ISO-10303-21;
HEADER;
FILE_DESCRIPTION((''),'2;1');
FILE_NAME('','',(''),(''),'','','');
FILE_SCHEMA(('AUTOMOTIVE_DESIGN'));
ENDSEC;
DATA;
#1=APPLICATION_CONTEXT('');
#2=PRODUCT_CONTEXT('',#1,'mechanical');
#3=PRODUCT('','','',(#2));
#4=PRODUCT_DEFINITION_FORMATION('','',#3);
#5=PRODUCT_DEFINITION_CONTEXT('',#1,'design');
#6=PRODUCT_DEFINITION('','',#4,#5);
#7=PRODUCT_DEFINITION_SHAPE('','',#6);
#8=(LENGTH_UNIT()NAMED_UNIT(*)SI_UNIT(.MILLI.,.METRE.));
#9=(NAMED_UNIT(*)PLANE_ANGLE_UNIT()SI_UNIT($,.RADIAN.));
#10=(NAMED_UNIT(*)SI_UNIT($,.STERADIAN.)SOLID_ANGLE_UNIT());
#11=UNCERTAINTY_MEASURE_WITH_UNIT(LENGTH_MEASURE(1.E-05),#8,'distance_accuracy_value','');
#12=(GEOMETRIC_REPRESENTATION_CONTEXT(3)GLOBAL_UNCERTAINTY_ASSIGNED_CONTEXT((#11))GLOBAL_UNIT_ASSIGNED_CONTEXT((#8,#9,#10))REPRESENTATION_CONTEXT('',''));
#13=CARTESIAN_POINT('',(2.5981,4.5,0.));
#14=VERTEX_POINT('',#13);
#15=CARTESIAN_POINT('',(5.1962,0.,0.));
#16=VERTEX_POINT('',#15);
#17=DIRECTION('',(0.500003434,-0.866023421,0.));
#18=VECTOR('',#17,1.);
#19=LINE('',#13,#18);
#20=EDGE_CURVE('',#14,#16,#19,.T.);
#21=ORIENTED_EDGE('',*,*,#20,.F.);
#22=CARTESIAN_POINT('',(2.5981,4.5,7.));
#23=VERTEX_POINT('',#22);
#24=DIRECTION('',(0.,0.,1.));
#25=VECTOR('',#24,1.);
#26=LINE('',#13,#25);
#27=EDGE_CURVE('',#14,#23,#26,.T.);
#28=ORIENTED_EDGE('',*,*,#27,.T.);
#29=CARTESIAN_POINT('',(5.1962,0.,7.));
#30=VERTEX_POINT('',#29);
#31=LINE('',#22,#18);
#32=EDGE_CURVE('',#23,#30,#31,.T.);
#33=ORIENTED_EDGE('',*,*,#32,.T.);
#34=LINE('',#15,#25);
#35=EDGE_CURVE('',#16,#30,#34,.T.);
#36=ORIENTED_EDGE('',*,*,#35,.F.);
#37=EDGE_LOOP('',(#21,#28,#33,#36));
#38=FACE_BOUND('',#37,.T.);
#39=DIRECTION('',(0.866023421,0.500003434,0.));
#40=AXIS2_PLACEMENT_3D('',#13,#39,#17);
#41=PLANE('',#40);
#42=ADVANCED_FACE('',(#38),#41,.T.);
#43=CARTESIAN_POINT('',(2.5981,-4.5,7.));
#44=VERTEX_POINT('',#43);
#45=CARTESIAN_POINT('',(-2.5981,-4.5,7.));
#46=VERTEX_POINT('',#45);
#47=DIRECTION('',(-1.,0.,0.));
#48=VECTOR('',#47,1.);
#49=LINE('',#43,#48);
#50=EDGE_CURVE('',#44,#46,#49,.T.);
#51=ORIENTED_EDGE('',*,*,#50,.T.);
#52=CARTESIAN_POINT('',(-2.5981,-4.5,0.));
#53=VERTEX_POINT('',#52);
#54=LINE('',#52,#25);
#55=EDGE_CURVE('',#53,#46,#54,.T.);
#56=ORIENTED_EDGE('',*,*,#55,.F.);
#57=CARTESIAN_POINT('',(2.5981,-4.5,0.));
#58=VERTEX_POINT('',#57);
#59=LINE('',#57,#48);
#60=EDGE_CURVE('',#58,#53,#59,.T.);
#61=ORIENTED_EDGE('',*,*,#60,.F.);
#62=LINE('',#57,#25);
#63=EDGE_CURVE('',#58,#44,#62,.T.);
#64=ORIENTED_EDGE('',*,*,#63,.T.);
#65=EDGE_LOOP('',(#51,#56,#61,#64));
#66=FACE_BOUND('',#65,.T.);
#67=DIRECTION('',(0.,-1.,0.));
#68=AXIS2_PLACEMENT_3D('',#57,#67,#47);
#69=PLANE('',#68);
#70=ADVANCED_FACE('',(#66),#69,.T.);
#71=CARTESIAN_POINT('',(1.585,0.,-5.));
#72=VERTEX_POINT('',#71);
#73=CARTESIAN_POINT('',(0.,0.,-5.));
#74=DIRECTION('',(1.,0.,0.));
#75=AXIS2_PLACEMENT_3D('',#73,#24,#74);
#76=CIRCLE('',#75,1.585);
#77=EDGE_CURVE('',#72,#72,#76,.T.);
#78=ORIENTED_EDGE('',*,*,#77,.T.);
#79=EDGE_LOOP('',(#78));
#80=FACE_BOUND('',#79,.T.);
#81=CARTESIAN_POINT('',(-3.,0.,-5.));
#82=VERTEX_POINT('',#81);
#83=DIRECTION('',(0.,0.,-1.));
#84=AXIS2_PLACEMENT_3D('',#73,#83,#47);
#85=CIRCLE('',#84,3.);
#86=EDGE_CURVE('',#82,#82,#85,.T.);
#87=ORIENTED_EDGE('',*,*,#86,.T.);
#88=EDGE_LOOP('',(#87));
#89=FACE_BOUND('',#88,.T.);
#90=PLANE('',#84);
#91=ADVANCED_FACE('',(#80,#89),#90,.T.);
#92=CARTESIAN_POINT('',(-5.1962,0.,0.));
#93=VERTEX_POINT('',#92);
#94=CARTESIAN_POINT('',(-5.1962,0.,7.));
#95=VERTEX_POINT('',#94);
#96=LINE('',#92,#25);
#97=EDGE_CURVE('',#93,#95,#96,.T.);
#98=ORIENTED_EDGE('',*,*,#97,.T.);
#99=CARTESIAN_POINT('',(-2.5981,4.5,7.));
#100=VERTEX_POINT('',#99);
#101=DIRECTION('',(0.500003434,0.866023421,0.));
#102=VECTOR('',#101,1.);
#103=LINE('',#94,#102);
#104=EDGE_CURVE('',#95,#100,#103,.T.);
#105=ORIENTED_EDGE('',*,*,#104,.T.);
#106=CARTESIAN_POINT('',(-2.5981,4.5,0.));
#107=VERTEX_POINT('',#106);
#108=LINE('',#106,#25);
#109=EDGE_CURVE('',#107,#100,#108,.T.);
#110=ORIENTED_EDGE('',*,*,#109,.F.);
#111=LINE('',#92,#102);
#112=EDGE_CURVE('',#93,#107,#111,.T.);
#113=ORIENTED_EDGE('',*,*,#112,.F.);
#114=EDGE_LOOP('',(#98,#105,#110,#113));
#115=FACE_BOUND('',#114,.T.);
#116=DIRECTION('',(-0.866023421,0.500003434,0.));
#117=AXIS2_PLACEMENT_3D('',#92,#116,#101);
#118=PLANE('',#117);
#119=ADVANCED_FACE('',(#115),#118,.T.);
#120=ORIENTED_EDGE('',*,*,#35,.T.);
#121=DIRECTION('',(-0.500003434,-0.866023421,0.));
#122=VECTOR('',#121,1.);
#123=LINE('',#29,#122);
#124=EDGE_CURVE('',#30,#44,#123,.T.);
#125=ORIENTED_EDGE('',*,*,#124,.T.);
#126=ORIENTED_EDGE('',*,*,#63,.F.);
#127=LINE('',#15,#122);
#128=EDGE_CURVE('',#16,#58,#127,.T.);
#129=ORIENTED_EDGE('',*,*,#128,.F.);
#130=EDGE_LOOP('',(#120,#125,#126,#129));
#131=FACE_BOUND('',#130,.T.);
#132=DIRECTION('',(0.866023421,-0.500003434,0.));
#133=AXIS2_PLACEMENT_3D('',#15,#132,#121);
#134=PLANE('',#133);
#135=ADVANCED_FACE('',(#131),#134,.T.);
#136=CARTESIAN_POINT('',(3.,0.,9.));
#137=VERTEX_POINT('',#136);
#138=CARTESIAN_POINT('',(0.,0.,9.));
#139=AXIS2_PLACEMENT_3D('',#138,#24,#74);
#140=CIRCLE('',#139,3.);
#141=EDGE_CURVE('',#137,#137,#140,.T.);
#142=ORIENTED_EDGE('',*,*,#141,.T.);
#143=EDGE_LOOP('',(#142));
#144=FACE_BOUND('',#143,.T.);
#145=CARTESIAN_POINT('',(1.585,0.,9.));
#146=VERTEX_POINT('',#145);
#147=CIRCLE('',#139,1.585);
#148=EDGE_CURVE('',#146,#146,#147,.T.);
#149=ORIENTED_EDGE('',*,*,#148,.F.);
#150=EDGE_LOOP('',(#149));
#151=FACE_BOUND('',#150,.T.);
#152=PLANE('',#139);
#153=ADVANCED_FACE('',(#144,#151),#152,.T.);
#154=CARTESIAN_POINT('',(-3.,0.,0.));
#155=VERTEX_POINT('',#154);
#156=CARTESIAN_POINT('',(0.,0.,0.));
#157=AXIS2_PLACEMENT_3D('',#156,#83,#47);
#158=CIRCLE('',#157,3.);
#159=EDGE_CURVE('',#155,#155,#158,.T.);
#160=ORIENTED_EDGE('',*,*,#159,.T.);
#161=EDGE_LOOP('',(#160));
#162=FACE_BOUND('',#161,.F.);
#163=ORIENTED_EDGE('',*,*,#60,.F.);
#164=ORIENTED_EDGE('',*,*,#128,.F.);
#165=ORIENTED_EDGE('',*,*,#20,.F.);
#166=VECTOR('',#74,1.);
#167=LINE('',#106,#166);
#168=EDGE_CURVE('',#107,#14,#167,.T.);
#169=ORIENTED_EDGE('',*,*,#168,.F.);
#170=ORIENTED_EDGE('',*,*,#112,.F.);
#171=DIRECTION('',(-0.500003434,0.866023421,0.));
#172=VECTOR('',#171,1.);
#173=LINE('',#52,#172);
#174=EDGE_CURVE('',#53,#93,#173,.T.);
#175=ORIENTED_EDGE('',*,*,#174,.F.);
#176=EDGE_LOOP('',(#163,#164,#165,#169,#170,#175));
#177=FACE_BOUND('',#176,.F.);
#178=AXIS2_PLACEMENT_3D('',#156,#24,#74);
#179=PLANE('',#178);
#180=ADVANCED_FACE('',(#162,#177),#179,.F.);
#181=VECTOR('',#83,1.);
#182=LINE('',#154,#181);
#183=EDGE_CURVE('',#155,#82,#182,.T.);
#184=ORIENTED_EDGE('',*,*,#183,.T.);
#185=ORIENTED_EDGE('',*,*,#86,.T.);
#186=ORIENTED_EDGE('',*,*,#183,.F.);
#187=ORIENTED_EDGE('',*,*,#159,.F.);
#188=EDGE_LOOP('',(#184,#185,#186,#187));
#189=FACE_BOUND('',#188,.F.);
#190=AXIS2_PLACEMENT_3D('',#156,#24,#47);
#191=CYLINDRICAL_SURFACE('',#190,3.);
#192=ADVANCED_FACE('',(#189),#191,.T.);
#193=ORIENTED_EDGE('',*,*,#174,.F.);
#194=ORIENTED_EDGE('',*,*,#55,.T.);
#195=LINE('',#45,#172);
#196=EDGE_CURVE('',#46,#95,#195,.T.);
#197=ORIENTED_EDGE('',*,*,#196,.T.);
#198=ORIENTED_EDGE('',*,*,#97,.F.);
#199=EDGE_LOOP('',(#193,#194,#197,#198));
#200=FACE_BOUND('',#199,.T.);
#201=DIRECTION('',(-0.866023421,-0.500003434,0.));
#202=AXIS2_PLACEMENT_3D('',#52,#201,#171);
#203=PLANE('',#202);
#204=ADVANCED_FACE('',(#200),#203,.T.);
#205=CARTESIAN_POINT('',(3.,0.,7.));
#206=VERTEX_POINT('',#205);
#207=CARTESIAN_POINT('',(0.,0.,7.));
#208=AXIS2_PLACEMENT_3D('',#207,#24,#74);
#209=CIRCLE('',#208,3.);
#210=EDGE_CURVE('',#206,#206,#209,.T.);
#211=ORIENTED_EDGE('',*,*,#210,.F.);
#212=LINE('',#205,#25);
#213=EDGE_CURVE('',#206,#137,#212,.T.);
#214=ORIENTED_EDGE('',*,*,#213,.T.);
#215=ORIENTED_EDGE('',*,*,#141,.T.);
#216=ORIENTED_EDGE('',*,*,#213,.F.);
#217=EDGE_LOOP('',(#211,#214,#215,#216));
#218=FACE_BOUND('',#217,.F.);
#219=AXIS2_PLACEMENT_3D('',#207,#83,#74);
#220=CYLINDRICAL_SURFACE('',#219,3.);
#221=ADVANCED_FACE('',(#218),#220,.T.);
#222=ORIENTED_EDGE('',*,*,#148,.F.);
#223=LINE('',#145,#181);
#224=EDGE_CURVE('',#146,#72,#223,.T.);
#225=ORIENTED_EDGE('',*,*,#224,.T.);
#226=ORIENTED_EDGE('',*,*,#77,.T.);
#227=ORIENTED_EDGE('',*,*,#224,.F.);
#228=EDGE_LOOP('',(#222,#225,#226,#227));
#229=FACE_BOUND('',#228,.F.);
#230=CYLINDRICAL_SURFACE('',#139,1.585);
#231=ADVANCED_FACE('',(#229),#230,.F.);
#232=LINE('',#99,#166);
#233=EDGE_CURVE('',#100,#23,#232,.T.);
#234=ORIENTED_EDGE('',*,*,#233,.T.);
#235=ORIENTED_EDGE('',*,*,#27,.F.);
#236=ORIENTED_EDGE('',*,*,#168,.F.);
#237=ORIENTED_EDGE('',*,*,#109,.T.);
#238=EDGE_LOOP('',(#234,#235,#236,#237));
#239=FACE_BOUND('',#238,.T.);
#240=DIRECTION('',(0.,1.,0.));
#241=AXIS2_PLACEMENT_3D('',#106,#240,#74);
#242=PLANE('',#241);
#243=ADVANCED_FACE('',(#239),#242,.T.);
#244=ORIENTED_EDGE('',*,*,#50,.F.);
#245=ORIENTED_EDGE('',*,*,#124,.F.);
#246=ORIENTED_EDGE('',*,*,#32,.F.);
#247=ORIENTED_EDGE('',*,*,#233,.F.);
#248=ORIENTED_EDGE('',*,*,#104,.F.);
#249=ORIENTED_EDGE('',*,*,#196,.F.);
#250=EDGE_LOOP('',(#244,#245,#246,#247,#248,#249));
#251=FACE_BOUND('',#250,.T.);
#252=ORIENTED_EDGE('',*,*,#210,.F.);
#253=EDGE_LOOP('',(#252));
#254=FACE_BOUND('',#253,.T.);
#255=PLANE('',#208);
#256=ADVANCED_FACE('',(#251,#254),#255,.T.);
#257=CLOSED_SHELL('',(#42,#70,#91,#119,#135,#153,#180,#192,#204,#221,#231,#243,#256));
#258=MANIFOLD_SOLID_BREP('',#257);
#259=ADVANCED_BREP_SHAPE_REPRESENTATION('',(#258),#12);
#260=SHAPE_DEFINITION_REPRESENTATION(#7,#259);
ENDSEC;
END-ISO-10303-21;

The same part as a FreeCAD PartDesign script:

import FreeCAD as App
import Part
import Sketcher

V = App.Vector
Q = App.Units.Quantity


def add_polygon(sketch, points):
    """Adds a closed chain of lines whose ends are joined by coincident constraints."""
    first, n = sketch.GeometryCount, len(points)
    for a, b in zip(points, points[1:] + points[:1]):
        sketch.addGeometry(Part.LineSegment(App.Vector(*a, 0), App.Vector(*b, 0)), False)
    for i in range(n):
        sketch.addConstraint(Sketcher.Constraint("Coincident", first + i, 2, first + (i + 1) % n, 1))

doc = App.newDocument("Part")
body = doc.addObject("PartDesign::Body", "Body")

# Sketch on XY plane
sketch1 = body.newObject("Sketcher::SketchObject", "Sketch")
sketch1.AttachmentSupport = (doc.getObject("XY_Plane"), [""])
sketch1.MapMode = "FlatFace"
add_polygon(sketch1, [(-3, 4), (-5, 0), (-3, -4), (3, -4), (5, 0), (3, 4)])  # lines 0-5
sketch1.addConstraint(Sketcher.Constraint("Horizontal", 2))
sketch1.addConstraint(Sketcher.Constraint("Horizontal", 5))
sketch1.addConstraint(Sketcher.Constraint("Symmetric", 0, 2, 3, 2, -1, 1))
sketch1.addConstraint(Sketcher.Constraint("Symmetric", 1, 2, 4, 2, -1, 1))
sketch1.addConstraint(Sketcher.Constraint("PointOnObject", 0, 2, -1))
sketch1.addConstraint(Sketcher.Constraint("Parallel", 0, 3))
sketch1.addConstraint(Sketcher.Constraint("Vertical", 2, 2, 4, 2))
sketch1.addConstraint(Sketcher.Constraint("DistanceY", 2, 2, 4, 2, 9.0))
sketch1.addConstraint(Sketcher.Constraint("Angle", 0, Q("-120.0002 deg")))
sketch1.addConstraint(Sketcher.Constraint("DistanceX", 2, 1, 2, 2, 5.1962))
pad1 = body.newObject("PartDesign::Pad", "Pad")
pad1.Profile = sketch1
pad1.Length = 7

# Sketch on XY plane
sketch2 = body.newObject("Sketcher::SketchObject", "Sketch001")
sketch2.AttachmentSupport = (doc.getObject("XY_Plane"), [""])
sketch2.MapMode = "FlatFace"
sketch2.AttachmentOffset = App.Placement(V(0, 0, 7), App.Rotation())
sketch2.addGeometry(Part.Circle(V(0, 0, 0), V(0, 0, 1), 3), False)
sketch2.addConstraint(Sketcher.Constraint("Coincident", 0, 3, -1, 1))
sketch2.addConstraint(Sketcher.Constraint("Diameter", 0, 6.0))
pad2 = body.newObject("PartDesign::Pad", "Pad001")
pad2.Profile = sketch2
pad2.Length = 2

# Sketch on XY plane
sketch3 = body.newObject("Sketcher::SketchObject", "Sketch002")
sketch3.AttachmentSupport = (doc.getObject("XY_Plane"), [""])
sketch3.MapMode = "FlatFace"
sketch3.addGeometry(Part.Circle(V(0, 0, 0), V(0, 0, 1), 3), False)
sketch3.addConstraint(Sketcher.Constraint("Coincident", 0, 3, -1, 1))
sketch3.addConstraint(Sketcher.Constraint("Diameter", 0, 6.0))
pad3 = body.newObject("PartDesign::Pad", "Pad002")
pad3.Profile = sketch3
pad3.Length = 5
pad3.Reversed = True

# Sketch on XY plane
sketch4 = body.newObject("Sketcher::SketchObject", "Sketch003")
sketch4.AttachmentSupport = (doc.getObject("XY_Plane"), [""])
sketch4.MapMode = "FlatFace"
sketch4.AttachmentOffset = App.Placement(V(0, 0, 9), App.Rotation())
sketch4.addGeometry(Part.Circle(V(0, 0, 0), V(0, 0, 1), 1.6), False)
sketch4.addConstraint(Sketcher.Constraint("Coincident", 0, 3, -1, 1))
sketch4.addConstraint(Sketcher.Constraint("Diameter", 0, 3.17))
pocket1 = body.newObject("PartDesign::Pocket", "Pocket")
pocket1.Profile = sketch4
pocket1.Type = "ThroughAll"

doc.recompute()
